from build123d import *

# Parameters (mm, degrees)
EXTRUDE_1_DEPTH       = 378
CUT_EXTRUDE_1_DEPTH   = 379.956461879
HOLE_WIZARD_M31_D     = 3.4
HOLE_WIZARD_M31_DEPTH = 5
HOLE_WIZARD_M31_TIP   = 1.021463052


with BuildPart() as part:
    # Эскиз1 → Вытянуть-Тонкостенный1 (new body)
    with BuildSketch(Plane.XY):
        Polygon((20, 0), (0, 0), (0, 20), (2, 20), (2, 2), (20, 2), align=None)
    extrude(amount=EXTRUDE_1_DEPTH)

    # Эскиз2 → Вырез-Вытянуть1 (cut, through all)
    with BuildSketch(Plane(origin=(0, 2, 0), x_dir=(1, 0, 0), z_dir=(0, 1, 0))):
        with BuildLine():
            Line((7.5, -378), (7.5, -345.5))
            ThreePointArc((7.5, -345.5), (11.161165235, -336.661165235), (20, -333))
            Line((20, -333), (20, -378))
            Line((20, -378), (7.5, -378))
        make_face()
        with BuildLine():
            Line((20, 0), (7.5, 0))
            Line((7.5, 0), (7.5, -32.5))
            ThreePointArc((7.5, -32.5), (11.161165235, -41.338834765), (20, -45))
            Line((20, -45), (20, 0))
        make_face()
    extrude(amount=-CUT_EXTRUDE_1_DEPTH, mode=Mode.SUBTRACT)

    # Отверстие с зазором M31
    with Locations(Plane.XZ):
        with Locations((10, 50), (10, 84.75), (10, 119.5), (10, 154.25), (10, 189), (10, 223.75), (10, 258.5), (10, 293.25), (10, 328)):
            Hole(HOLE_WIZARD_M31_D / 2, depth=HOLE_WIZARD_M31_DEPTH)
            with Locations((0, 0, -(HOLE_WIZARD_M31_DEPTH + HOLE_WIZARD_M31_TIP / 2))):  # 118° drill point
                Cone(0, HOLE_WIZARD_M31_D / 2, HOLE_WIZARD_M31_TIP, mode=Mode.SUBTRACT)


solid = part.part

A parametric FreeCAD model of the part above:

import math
import FreeCAD as App
import Part
import Sketcher
Q = App.Units.Quantity

doc = App.newDocument("Part")
body = doc.addObject("PartDesign::Body", "Body")

sketch1 = body.newObject("Sketcher::SketchObject", "Sketch")
sketch1.AttachmentSupport = (doc.getObject("XY_Plane"), [""])
sketch1.MapMode = "FlatFace"
sketch1.addGeometry(Part.LineSegment(App.Vector(0, 0, 0), App.Vector(20, 0, 0)), False)
sketch1.addGeometry(Part.LineSegment(App.Vector(20, 0, 0), App.Vector(20, 2, 0)), False)
sketch1.addGeometry(Part.LineSegment(App.Vector(20, 2, 0), App.Vector(2, 2, 0)), False)
sketch1.addGeometry(Part.LineSegment(App.Vector(2, 2, 0), App.Vector(2, 20, 0)), False)
sketch1.addGeometry(Part.LineSegment(App.Vector(2, 20, 0), App.Vector(0, 20, 0)), False)
sketch1.addGeometry(Part.LineSegment(App.Vector(0, 20, 0), App.Vector(0, 0, 0)), False)
sketch1.addConstraint(Sketcher.Constraint("Coincident", 0, 2, 1, 1))
sketch1.addConstraint(Sketcher.Constraint("Coincident", 1, 2, 2, 1))
sketch1.addConstraint(Sketcher.Constraint("Coincident", 2, 2, 3, 1))
sketch1.addConstraint(Sketcher.Constraint("Coincident", 3, 2, 4, 1))
sketch1.addConstraint(Sketcher.Constraint("Coincident", 4, 2, 5, 1))
sketch1.addConstraint(Sketcher.Constraint("Coincident", 5, 2, 0, 1))
sketch1.addConstraint(Sketcher.Constraint("Horizontal", 0))
sketch1.addConstraint(Sketcher.Constraint("Vertical", 1))
sketch1.addConstraint(Sketcher.Constraint("Horizontal", 2))
sketch1.addConstraint(Sketcher.Constraint("Vertical", 3))
sketch1.addConstraint(Sketcher.Constraint("Horizontal", 4))
sketch1.addConstraint(Sketcher.Constraint("Vertical", 5))
sketch1.addConstraint(Sketcher.Constraint("Coincident", 5, 2, -1, 1))
sketch1.addConstraint(Sketcher.Constraint("Equal", 4, 1))
sketch1.addConstraint(Sketcher.Constraint("Equal", 2, 3))
sketch1.addConstraint(Sketcher.Constraint("DistanceX", 0, 1, 0, 2, Q("20 mm")))
sketch1.addConstraint(Sketcher.Constraint("DistanceX", 2, 2, 2, 1, Q("18 mm")))
pad1 = body.newObject("PartDesign::Pad", "Pad")
pad1.Profile = sketch1
pad1.Length = 378

sketch2 = body.newObject("Sketcher::SketchObject", "Sketch001")
sketch2.AttachmentSupport = (doc.getObject("XZ_Plane"), [""])
sketch2.MapMode = "FlatFace"
sketch2.AttachmentOffset = App.Placement(App.Vector(0, 0, -2), App.Rotation())
sketch2.addGeometry(Part.LineSegment(App.Vector(7.5, 345.5, 0), App.Vector(7.5, 378, 0)), False)
sketch2.addGeometry(Part.LineSegment(App.Vector(7.5, 378, 0), App.Vector(20, 378, 0)), False)
sketch2.addGeometry(Part.LineSegment(App.Vector(20, 378, 0), App.Vector(20, 333, 0)), False)
sketch2.addGeometry(Part.ArcOfCircle(Part.Circle(App.Vector(20, 345.5, 0), App.Vector(0, 0, 1), 12.5), math.radians(180), math.radians(270)), False)
sketch2.addGeometry(Part.LineSegment(App.Vector(20, 0, 0), App.Vector(7.5, 0, 0)), False)
sketch2.addGeometry(Part.LineSegment(App.Vector(7.5, 0, 0), App.Vector(7.5, 32.5, 0)), False)
sketch2.addGeometry(Part.ArcOfCircle(Part.Circle(App.Vector(20, 32.5, 0), App.Vector(0, 0, 1), 12.5), math.radians(90), math.radians(180)), False)
sketch2.addGeometry(Part.LineSegment(App.Vector(20, 45, 0), App.Vector(20, 0, 0)), False)
sketch2.addConstraint(Sketcher.Constraint("Coincident", 0, 2, 1, 1))
sketch2.addConstraint(Sketcher.Constraint("Coincident", 1, 2, 2, 1))
sketch2.addConstraint(Sketcher.Constraint("Coincident", 2, 2, 3, 2))
sketch2.addConstraint(Sketcher.Constraint("Tangent", 3, 1, 0, 1))
sketch2.addConstraint(Sketcher.Constraint("Coincident", 4, 2, 5, 1))
sketch2.addConstraint(Sketcher.Constraint("Tangent", 5, 2, 6, 2))
sketch2.addConstraint(Sketcher.Constraint("Coincident", 6, 1, 7, 1))
sketch2.addConstraint(Sketcher.Constraint("Coincident", 7, 2, 4, 1))
sketch2.addConstraint(Sketcher.Constraint("Vertical", 0))
sketch2.addConstraint(Sketcher.Constraint("Horizontal", 1))
sketch2.addConstraint(Sketcher.Constraint("Vertical", 2))
sketch2.addConstraint(Sketcher.Constraint("Horizontal", 4))
sketch2.addConstraint(Sketcher.Constraint("Vertical", 5))
sketch2.addConstraint(Sketcher.Constraint("Vertical", 7))
sketch2.addConstraint(Sketcher.Constraint("Equal", 3, 6))
sketch2.addConstraint(Sketcher.Constraint("PointOnObject", 4, 2, -1))
sketch2.addConstraint(Sketcher.Constraint("Vertical", 3, 3, 6, 3))
sketch2.addConstraint(Sketcher.Constraint("Vertical", 6, 3, 1, 2))
sketch2.addConstraint(Sketcher.Constraint("Vertical", 2, 2, 6, 1))
sketch2.addConstraint(Sketcher.Constraint("Equal", 0, 5))
sketch2.addConstraint(Sketcher.Constraint("Radius", 3, Q("12.5 mm")))
sketch2.addConstraint(Sketcher.Constraint("DistanceY", 2, 2, 2, 1, Q("45 mm")))
sketch2.addConstraint(Sketcher.Constraint("DistanceX", -1, 1, 3, 3, Q("20 mm")))
sketch2.addConstraint(Sketcher.Constraint("DistanceY", -1, 1, 0, 2, Q("378 mm")))
pocket1 = body.newObject("PartDesign::Pocket", "Pocket")
pocket1.Profile = sketch2
pocket1.Type = "ThroughAll"
pocket1.Reversed = True

sketch3 = body.newObject("Sketcher::SketchObject", "Sketch002")
sketch3.AttachmentSupport = (doc.getObject("XZ_Plane"), [""])
sketch3.MapMode = "FlatFace"
sketch3.addGeometry(Part.Circle(App.Vector(10, 50, 0), App.Vector(0, 0, 1), 1.7), False)
sketch3.addGeometry(Part.Circle(App.Vector(10, 84.75, 0), App.Vector(0, 0, 1), 1.7), False)
sketch3.addGeometry(Part.Circle(App.Vector(10, 119.5, 0), App.Vector(0, 0, 1), 1.7), False)
sketch3.addGeometry(Part.Circle(App.Vector(10, 154.25, 0), App.Vector(0, 0, 1), 1.7), False)
sketch3.addGeometry(Part.Circle(App.Vector(10, 189, 0), App.Vector(0, 0, 1), 1.7), False)
sketch3.addGeometry(Part.Circle(App.Vector(10, 223.75, 0), App.Vector(0, 0, 1), 1.7), False)
sketch3.addGeometry(Part.Circle(App.Vector(10, 258.5, 0), App.Vector(0, 0, 1), 1.7), False)
sketch3.addGeometry(Part.Circle(App.Vector(10, 293.25, 0), App.Vector(0, 0, 1), 1.7), False)
sketch3.addGeometry(Part.Circle(App.Vector(10, 328, 0), App.Vector(0, 0, 1), 1.7), False)
sketch3.addConstraint(Sketcher.Constraint("Equal", 0, 1))
sketch3.addConstraint(Sketcher.Constraint("Equal", 1, 2))
sketch3.addConstraint(Sketcher.Constraint("Equal", 2, 3))
sketch3.addConstraint(Sketcher.Constraint("Equal", 3, 4))
sketch3.addConstraint(Sketcher.Constraint("Equal", 4, 5))
sketch3.addConstraint(Sketcher.Constraint("Equal", 5, 6))
sketch3.addConstraint(Sketcher.Constraint("Equal", 6, 7))
sketch3.addConstraint(Sketcher.Constraint("Equal", 7, 8))
sketch3.addConstraint(Sketcher.Constraint("Vertical", 0, 3, 1, 3))
sketch3.addConstraint(Sketcher.Constraint("Vertical", 1, 3, 2, 3))
sketch3.addConstraint(Sketcher.Constraint("Vertical", 2, 3, 3, 3))
sketch3.addConstraint(Sketcher.Constraint("Vertical", 3, 3, 4, 3))
sketch3.addConstraint(Sketcher.Constraint("Vertical", 4, 3, 5, 3))
sketch3.addConstraint(Sketcher.Constraint("Vertical", 5, 3, 6, 3))
sketch3.addConstraint(Sketcher.Constraint("Vertical", 6, 3, 7, 3))
sketch3.addConstraint(Sketcher.Constraint("Vertical", 7, 3, 8, 3))
sketch3.addConstraint(Sketcher.Constraint("Diameter", 0, Q("3.4 mm")))
sketch3.addConstraint(Sketcher.Constraint("DistanceX", -1, 1, 0, 3, Q("10 mm")))
sketch3.addConstraint(Sketcher.Constraint("DistanceY", -1, 1, 0, 3, Q("50 mm")))
sketch3.addConstraint(Sketcher.Constraint("DistanceY", -1, 1, 4, 3, Q("189 mm")))
sketch3.addConstraint(Sketcher.Constraint("DistanceY", -1, 1, 8, 3, Q("328 mm")))
sketch3.addConstraint(Sketcher.Constraint("DistanceY", 1, 3, 5, 3, Q("139 mm")))
sketch3.addConstraint(Sketcher.Constraint("DistanceY", 2, 3, 6, 3, Q("139 mm")))
sketch3.addConstraint(Sketcher.Constraint("DistanceY", 3, 3, 7, 3, Q("139 mm")))
sketch3.addConstraint(Sketcher.Constraint("DistanceY", -1, 1, 2, 3, Q("119.5 mm")))
sketch3.addConstraint(Sketcher.Constraint("DistanceY", 1, 3, 3, 3, Q("69.5 mm")))
sketch3.addConstraint(Sketcher.Constraint("DistanceY", -1, 1, 1, 3, Q("84.75 mm")))
doc.recompute()
hole = body.newObject("PartDesign::Hole", "Hole")
hole.Profile = sketch3
hole.ThreadType = "None"
hole.Diameter = 3.4
hole.DepthType = "Dimension"
hole.Depth = 5
hole.DrillPoint = "Angled"
hole.DrillPointAngle = 118

doc.recompute()
